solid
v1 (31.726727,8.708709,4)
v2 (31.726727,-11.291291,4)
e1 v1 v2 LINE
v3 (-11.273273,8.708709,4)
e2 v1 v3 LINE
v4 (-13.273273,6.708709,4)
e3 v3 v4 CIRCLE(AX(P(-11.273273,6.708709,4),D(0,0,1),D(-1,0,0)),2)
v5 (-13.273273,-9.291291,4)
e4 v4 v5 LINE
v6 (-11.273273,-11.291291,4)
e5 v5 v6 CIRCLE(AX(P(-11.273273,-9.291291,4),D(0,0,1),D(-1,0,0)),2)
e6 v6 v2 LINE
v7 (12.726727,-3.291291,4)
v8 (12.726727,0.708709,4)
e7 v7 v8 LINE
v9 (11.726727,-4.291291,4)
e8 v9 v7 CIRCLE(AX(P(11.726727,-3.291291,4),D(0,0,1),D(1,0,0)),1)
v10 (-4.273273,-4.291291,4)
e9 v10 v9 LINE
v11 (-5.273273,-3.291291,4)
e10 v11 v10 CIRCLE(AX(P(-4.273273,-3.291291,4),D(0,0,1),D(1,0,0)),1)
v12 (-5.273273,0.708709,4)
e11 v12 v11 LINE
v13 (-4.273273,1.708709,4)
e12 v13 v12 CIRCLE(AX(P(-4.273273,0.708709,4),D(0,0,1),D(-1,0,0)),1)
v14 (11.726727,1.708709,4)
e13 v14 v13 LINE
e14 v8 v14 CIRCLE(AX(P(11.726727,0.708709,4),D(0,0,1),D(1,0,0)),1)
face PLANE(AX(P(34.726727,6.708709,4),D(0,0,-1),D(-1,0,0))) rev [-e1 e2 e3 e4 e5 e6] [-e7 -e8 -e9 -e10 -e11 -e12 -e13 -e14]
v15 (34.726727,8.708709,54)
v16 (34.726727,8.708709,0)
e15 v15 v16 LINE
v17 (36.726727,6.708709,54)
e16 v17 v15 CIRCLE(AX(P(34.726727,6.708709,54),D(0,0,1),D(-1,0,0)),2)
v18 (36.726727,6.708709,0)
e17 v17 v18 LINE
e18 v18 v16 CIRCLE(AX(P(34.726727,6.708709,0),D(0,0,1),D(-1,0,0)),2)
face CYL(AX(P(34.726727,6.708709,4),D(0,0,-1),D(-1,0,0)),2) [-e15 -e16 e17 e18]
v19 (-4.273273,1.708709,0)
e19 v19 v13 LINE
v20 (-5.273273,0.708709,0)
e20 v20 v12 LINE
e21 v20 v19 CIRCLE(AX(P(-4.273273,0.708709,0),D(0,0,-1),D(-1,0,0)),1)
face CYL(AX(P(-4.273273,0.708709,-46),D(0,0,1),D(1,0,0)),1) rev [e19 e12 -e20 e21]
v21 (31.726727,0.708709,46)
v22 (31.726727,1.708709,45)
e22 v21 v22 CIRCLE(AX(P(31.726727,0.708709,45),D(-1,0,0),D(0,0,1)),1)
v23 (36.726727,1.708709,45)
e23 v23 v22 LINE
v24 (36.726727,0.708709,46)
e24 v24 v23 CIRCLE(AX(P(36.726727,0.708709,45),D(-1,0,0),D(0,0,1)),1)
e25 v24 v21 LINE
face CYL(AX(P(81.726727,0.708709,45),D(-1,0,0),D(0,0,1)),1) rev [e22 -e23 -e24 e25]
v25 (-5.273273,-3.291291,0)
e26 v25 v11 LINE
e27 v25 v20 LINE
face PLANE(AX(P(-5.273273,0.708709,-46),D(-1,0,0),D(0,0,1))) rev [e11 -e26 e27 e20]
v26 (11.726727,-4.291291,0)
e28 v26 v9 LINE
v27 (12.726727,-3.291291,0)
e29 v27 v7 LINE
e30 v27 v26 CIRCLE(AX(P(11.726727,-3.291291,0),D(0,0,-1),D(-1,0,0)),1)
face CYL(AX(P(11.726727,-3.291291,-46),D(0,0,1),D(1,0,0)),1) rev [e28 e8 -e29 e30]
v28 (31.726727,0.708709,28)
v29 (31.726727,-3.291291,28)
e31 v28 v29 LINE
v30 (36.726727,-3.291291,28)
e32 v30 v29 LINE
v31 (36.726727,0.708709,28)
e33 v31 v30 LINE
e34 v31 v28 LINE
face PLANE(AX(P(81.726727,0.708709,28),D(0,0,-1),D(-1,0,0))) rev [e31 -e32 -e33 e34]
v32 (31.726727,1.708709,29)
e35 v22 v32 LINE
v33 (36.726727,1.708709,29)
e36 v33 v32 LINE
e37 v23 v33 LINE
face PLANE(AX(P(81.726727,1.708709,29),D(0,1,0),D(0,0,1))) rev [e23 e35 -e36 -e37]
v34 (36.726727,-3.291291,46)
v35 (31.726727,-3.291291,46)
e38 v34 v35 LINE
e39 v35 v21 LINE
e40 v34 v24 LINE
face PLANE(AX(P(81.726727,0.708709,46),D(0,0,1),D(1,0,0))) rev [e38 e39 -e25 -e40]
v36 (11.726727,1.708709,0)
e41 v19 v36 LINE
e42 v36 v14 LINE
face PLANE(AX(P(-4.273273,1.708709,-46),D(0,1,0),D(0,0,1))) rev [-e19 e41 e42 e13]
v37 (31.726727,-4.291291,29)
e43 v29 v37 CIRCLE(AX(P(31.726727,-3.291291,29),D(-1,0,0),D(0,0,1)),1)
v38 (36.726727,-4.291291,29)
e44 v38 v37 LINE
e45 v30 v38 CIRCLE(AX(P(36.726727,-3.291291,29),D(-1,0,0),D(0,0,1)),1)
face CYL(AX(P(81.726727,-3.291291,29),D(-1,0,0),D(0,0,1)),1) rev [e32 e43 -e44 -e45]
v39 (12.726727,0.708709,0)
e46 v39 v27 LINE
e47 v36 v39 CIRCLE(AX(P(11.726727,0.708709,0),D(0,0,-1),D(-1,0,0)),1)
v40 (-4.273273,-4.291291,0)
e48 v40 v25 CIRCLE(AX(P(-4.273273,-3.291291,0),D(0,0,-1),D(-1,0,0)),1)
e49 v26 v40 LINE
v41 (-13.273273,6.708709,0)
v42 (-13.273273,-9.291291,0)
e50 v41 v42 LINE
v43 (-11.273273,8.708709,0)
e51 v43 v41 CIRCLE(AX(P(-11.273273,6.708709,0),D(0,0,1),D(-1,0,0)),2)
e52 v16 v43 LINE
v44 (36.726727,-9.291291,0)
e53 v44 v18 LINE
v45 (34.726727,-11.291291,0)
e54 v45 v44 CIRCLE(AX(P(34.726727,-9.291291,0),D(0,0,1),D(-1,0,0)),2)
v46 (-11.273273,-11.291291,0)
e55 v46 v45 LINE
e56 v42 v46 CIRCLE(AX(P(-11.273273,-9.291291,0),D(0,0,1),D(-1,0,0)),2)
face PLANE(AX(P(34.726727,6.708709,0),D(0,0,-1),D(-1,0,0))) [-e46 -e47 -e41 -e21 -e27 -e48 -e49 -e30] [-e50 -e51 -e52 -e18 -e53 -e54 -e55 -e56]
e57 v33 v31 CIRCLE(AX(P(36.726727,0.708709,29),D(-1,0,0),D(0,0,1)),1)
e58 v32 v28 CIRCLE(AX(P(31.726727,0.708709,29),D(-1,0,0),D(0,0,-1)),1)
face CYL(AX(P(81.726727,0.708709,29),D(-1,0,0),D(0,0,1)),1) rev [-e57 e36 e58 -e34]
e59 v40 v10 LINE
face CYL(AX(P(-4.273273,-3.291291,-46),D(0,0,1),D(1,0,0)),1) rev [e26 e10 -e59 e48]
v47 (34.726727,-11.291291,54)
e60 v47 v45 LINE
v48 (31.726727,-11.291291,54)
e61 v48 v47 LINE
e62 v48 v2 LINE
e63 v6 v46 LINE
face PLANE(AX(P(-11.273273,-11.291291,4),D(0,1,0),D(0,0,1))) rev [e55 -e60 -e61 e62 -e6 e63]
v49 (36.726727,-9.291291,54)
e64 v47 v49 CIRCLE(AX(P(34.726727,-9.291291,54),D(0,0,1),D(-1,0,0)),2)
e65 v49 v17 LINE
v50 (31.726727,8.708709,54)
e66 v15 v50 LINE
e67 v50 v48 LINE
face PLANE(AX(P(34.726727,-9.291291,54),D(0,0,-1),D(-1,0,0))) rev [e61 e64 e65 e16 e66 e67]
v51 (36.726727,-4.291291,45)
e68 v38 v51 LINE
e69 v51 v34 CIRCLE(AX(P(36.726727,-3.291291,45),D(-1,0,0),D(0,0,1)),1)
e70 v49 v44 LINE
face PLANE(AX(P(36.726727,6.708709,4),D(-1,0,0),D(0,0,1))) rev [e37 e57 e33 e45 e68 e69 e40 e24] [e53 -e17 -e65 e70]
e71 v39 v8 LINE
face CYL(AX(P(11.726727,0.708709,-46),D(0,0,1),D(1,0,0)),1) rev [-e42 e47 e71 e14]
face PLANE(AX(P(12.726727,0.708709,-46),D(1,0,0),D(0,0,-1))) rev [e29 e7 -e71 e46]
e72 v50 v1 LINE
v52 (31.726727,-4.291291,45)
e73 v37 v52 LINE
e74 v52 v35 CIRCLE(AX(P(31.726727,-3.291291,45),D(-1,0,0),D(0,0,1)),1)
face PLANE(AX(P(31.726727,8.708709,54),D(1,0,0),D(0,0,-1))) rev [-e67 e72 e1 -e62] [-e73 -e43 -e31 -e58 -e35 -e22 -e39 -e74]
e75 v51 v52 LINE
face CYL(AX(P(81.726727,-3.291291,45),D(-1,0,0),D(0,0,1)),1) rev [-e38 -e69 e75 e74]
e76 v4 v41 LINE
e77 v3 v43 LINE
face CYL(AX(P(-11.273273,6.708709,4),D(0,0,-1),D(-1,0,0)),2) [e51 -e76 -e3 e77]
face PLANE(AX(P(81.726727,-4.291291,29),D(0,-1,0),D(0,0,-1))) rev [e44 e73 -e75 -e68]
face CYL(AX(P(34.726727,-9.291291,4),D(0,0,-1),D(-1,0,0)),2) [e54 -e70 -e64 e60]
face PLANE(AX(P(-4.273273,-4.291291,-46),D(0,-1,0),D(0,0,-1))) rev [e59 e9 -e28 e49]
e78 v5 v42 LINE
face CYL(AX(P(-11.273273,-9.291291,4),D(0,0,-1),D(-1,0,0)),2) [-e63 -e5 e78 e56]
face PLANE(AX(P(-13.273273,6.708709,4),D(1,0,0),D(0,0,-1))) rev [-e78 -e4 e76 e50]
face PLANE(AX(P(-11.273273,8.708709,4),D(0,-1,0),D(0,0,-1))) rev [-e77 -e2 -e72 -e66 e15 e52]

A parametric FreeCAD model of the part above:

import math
import FreeCAD as App
import Part
import Sketcher

V = App.Vector

doc = App.newDocument("Part")
body = doc.addObject("PartDesign::Body", "Body")

# Sketch on XY plane
sketch1 = body.newObject("Sketcher::SketchObject", "Sketch")
sketch1.AttachmentSupport = (doc.getObject("XY_Plane"), [""])
sketch1.MapMode = "FlatFace"
sketch1.addGeometry(Part.LineSegment(V(34.7, 8.7, 0), V(-11.3, 8.7, 0)), False)
sketch1.addGeometry(Part.ArcOfCircle(Part.Circle(V(-11.3, 6.7, 0), V(0, 0, 1), 2), math.radians(90), math.radians(180)), False)
sketch1.addGeometry(Part.LineSegment(V(-13.3, 6.7, 0), V(-13.3, -9.3, 0)), False)
sketch1.addGeometry(Part.ArcOfCircle(Part.Circle(V(-11.3, -9.3, 0), V(0, 0, 1), 2), math.radians(180), math.radians(270)), False)
sketch1.addGeometry(Part.LineSegment(V(-11.3, -11.3, 0), V(34.7, -11.3, 0)), False)
sketch1.addGeometry(Part.ArcOfCircle(Part.Circle(V(34.7, -9.3, 0), V(0, 0, 1), 2), math.radians(-90), math.radians(0)), False)
sketch1.addGeometry(Part.LineSegment(V(36.7, -9.3, 0), V(36.7, 6.7, 0)), False)
sketch1.addGeometry(Part.ArcOfCircle(Part.Circle(V(34.7, 6.7, 0), V(0, 0, 1), 2), math.radians(0), math.radians(90)), False)
sketch1.addConstraint(Sketcher.Constraint("Tangent", 0, 2, 1, 1))
sketch1.addConstraint(Sketcher.Constraint("Tangent", 1, 2, 2, 1))
sketch1.addConstraint(Sketcher.Constraint("Tangent", 2, 2, 3, 1))
sketch1.addConstraint(Sketcher.Constraint("Tangent", 3, 2, 4, 1))
sketch1.addConstraint(Sketcher.Constraint("Tangent", 4, 2, 5, 1))
sketch1.addConstraint(Sketcher.Constraint("Tangent", 5, 2, 6, 1))
sketch1.addConstraint(Sketcher.Constraint("Tangent", 6, 2, 7, 1))
sketch1.addConstraint(Sketcher.Constraint("Tangent", 7, 2, 0, 1))
sketch1.addConstraint(Sketcher.Constraint("Horizontal", 0))
sketch1.addConstraint(Sketcher.Constraint("Vertical", 2))
sketch1.addConstraint(Sketcher.Constraint("Horizontal", 4))
sketch1.addConstraint(Sketcher.Constraint("Vertical", 6))
sketch1.addConstraint(Sketcher.Constraint("Equal", 1, 3))
sketch1.addConstraint(Sketcher.Constraint("Equal", 3, 5))
sketch1.addConstraint(Sketcher.Constraint("Equal", 5, 7))
sketch1.addConstraint(Sketcher.Constraint("Radius", 1, 2.0))
sketch1.addConstraint(Sketcher.Constraint("DistanceX", 0, 2, 0, 1, 46.0))
sketch1.addConstraint(Sketcher.Constraint("DistanceY", 2, 2, 2, 1, 16.0))
sketch1.addConstraint(Sketcher.Constraint("DistanceY", -1, 1, 1, 3, 6.708709))
sketch1.addConstraint(Sketcher.Constraint("DistanceX", 1, 3, -1, 1, 11.273273))
pad1 = body.newObject("PartDesign::Pad", "Pad")
pad1.Profile = sketch1
pad1.Length = 4

# Sketch on XY plane
sketch2 = body.newObject("Sketcher::SketchObject", "Sketch001")
sketch2.AttachmentSupport = (doc.getObject("XY_Plane"), [""])
sketch2.MapMode = "FlatFace"
sketch2.AttachmentOffset = App.Placement(V(0, 0, 4), App.Rotation())
sketch2.addGeometry(Part.LineSegment(V(34.7, 8.7, 0), V(31.7, 8.7, 0)), False)
sketch2.addGeometry(Part.LineSegment(V(31.7, 8.7, 0), V(31.7, -11.3, 0)), False)
sketch2.addGeometry(Part.LineSegment(V(31.7, -11.3, 0), V(34.7, -11.3, 0)), False)
sketch2.addGeometry(Part.ArcOfCircle(Part.Circle(V(34.7, -9.3, 0), V(0, 0, 1), 2), math.radians(-90), math.radians(0)), False)
sketch2.addGeometry(Part.LineSegment(V(36.7, -9.3, 0), V(36.7, 6.7, 0)), False)
sketch2.addGeometry(Part.ArcOfCircle(Part.Circle(V(34.7, 6.7, 0), V(0, 0, 1), 2), math.radians(0), math.radians(90)), False)
sketch2.addConstraint(Sketcher.Constraint("Coincident", 0, 2, 1, 1))
sketch2.addConstraint(Sketcher.Constraint("Coincident", 1, 2, 2, 1))
sketch2.addConstraint(Sketcher.Constraint("Tangent", 2, 2, 3, 1))
sketch2.addConstraint(Sketcher.Constraint("Tangent", 3, 2, 4, 1))
sketch2.addConstraint(Sketcher.Constraint("Tangent", 4, 2, 5, 1))
sketch2.addConstraint(Sketcher.Constraint("Tangent", 5, 2, 0, 1))
sketch2.addConstraint(Sketcher.Constraint("Horizontal", 0))
sketch2.addConstraint(Sketcher.Constraint("Vertical", 1))
sketch2.addConstraint(Sketcher.Constraint("Horizontal", 2))
sketch2.addConstraint(Sketcher.Constraint("Vertical", 4))
sketch2.addConstraint(Sketcher.Constraint("Equal", 3, 5))
sketch2.addConstraint(Sketcher.Constraint("Radius", 3, 2.0))
sketch2.addConstraint(Sketcher.Constraint("DistanceX", 0, 2, 0, 1, 3.0))
sketch2.addConstraint(Sketcher.Constraint("DistanceY", 1, 2, 1, 1, 20.0))
sketch2.addConstraint(Sketcher.Constraint("DistanceY", 3, 3, -1, 1, 9.291291))
sketch2.addConstraint(Sketcher.Constraint("DistanceX", -1, 1, 3, 3, 34.726727))
pad2 = body.newObject("PartDesign::Pad", "Pad001")
pad2.Profile = sketch2
pad2.Length = 50

# Sketch on XY plane
sketch3 = body.newObject("Sketcher::SketchObject", "Sketch002")
sketch3.AttachmentSupport = (doc.getObject("XY_Plane"), [""])
sketch3.MapMode = "FlatFace"
sketch3.AttachmentOffset = App.Placement(V(0, 0, 4), App.Rotation())
sketch3.addGeometry(Part.LineSegment(V(11.7, 1.7, 0), V(-4.3, 1.7, 0)), False)
sketch3.addGeometry(Part.ArcOfCircle(Part.Circle(V(-4.3, 0.7, 0), V(0, 0, 1), 1), math.radians(90), math.radians(180)), False)
sketch3.addGeometry(Part.LineSegment(V(-5.3, 0.7, 0), V(-5.3, -3.3, 0)), False)
sketch3.addGeometry(Part.ArcOfCircle(Part.Circle(V(-4.3, -3.3, 0), V(0, 0, 1), 1), math.radians(-180), math.radians(-90)), False)
sketch3.addGeometry(Part.LineSegment(V(-4.3, -4.3, 0), V(11.7, -4.3, 0)), False)
sketch3.addGeometry(Part.ArcOfCircle(Part.Circle(V(11.7, -3.3, 0), V(0, 0, 1), 1), math.radians(-90), math.radians(0)), False)
sketch3.addGeometry(Part.LineSegment(V(12.7, -3.3, 0), V(12.7, 0.7, 0)), False)
sketch3.addGeometry(Part.ArcOfCircle(Part.Circle(V(11.7, 0.7, 0), V(0, 0, 1), 1), math.radians(0), math.radians(90)), False)
sketch3.addConstraint(Sketcher.Constraint("Tangent", 0, 2, 1, 1))
sketch3.addConstraint(Sketcher.Constraint("Tangent", 1, 2, 2, 1))
sketch3.addConstraint(Sketcher.Constraint("Tangent", 2, 2, 3, 1))
sketch3.addConstraint(Sketcher.Constraint("Tangent", 3, 2, 4, 1))
sketch3.addConstraint(Sketcher.Constraint("Tangent", 4, 2, 5, 1))
sketch3.addConstraint(Sketcher.Constraint("Tangent", 5, 2, 6, 1))
sketch3.addConstraint(Sketcher.Constraint("Tangent", 6, 2, 7, 1))
sketch3.addConstraint(Sketcher.Constraint("Tangent", 7, 2, 0, 1))
sketch3.addConstraint(Sketcher.Constraint("Horizontal", 0))
sketch3.addConstraint(Sketcher.Constraint("Vertical", 2))
sketch3.addConstraint(Sketcher.Constraint("Horizontal", 4))
sketch3.addConstraint(Sketcher.Constraint("Vertical", 6))
sketch3.addConstraint(Sketcher.Constraint("Equal", 1, 3))
sketch3.addConstraint(Sketcher.Constraint("Equal", 3, 5))
sketch3.addConstraint(Sketcher.Constraint("Equal", 5, 7))
sketch3.addConstraint(Sketcher.Constraint("Radius", 1, 1.0))
sketch3.addConstraint(Sketcher.Constraint("DistanceX", 0, 2, 0, 1, 16.0))
sketch3.addConstraint(Sketcher.Constraint("DistanceY", 2, 2, 2, 1, 4.0))
sketch3.addConstraint(Sketcher.Constraint("DistanceY", -1, 1, 1, 3, 0.708709))
sketch3.addConstraint(Sketcher.Constraint("DistanceX", 1, 3, -1, 1, 4.273273))
pocket1 = body.newObject("PartDesign::Pocket", "Pocket")
pocket1.Profile = sketch3
pocket1.Length = 50

# Sketch on YZ plane
sketch4 = body.newObject("Sketcher::SketchObject", "Sketch003")
sketch4.AttachmentSupport = (doc.getObject("YZ_Plane"), [""])
sketch4.MapMode = "FlatFace"
sketch4.AttachmentOffset = App.Placement(V(0, 0, 31.726727), App.Rotation())
sketch4.addGeometry(Part.LineSegment(V(1.7, 45, 0), V(1.7, 29, 0)), False)
sketch4.addGeometry(Part.ArcOfCircle(Part.Circle(V(0.7, 29, 0), V(0, 0, 1), 1), math.radians(-90), math.radians(0)), False)
sketch4.addGeometry(Part.LineSegment(V(0.7, 28, 0), V(-3.3, 28, 0)), False)
sketch4.addGeometry(Part.ArcOfCircle(Part.Circle(V(-3.3, 29, 0), V(0, 0, 1), 1), math.radians(-180), math.radians(-90)), False)
sketch4.addGeometry(Part.LineSegment(V(-4.3, 29, 0), V(-4.3, 45, 0)), False)
sketch4.addGeometry(Part.ArcOfCircle(Part.Circle(V(-3.3, 45, 0), V(0, 0, 1), 1), math.radians(90), math.radians(180)), False)
sketch4.addGeometry(Part.LineSegment(V(-3.3, 46, 0), V(0.7, 46, 0)), False)
sketch4.addGeometry(Part.ArcOfCircle(Part.Circle(V(0.7, 45, 0), V(0, 0, 1), 1), math.radians(0), math.radians(90)), False)
sketch4.addConstraint(Sketcher.Constraint("Tangent", 0, 2, 1, 2))
sketch4.addConstraint(Sketcher.Constraint("Tangent", 1, 1, 2, 1))
sketch4.addConstraint(Sketcher.Constraint("Tangent", 2, 2, 3, 2))
sketch4.addConstraint(Sketcher.Constraint("Tangent", 3, 1, 4, 1))
sketch4.addConstraint(Sketcher.Constraint("Tangent", 4, 2, 5, 2))
sketch4.addConstraint(Sketcher.Constraint("Tangent", 5, 1, 6, 1))
sketch4.addConstraint(Sketcher.Constraint("Tangent", 6, 2, 7, 2))
sketch4.addConstraint(Sketcher.Constraint("Tangent", 7, 1, 0, 1))
sketch4.addConstraint(Sketcher.Constraint("Vertical", 0))
sketch4.addConstraint(Sketcher.Constraint("Horizontal", 2))
sketch4.addConstraint(Sketcher.Constraint("Vertical", 4))
sketch4.addConstraint(Sketcher.Constraint("Horizontal", 6))
sketch4.addConstraint(Sketcher.Constraint("Equal", 1, 3))
sketch4.addConstraint(Sketcher.Constraint("Equal", 3, 5))
sketch4.addConstraint(Sketcher.Constraint("Equal", 5, 7))
sketch4.addConstraint(Sketcher.Constraint("Radius", 1, 1.0))
sketch4.addConstraint(Sketcher.Constraint("DistanceX", 2, 2, 2, 1, 4.0))
sketch4.addConstraint(Sketcher.Constraint("DistanceY", 0, 2, 0, 1, 16.0))
sketch4.addConstraint(Sketcher.Constraint("DistanceY", -1, 1, 1, 3, 29.0))
sketch4.addConstraint(Sketcher.Constraint("DistanceX", -1, 1, 1, 3, 0.708709))
pocket2 = body.newObject("PartDesign::Pocket", "Pocket001")
pocket2.Profile = sketch4
pocket2.Length = 50
pocket2.Reversed = True

doc.recompute()
